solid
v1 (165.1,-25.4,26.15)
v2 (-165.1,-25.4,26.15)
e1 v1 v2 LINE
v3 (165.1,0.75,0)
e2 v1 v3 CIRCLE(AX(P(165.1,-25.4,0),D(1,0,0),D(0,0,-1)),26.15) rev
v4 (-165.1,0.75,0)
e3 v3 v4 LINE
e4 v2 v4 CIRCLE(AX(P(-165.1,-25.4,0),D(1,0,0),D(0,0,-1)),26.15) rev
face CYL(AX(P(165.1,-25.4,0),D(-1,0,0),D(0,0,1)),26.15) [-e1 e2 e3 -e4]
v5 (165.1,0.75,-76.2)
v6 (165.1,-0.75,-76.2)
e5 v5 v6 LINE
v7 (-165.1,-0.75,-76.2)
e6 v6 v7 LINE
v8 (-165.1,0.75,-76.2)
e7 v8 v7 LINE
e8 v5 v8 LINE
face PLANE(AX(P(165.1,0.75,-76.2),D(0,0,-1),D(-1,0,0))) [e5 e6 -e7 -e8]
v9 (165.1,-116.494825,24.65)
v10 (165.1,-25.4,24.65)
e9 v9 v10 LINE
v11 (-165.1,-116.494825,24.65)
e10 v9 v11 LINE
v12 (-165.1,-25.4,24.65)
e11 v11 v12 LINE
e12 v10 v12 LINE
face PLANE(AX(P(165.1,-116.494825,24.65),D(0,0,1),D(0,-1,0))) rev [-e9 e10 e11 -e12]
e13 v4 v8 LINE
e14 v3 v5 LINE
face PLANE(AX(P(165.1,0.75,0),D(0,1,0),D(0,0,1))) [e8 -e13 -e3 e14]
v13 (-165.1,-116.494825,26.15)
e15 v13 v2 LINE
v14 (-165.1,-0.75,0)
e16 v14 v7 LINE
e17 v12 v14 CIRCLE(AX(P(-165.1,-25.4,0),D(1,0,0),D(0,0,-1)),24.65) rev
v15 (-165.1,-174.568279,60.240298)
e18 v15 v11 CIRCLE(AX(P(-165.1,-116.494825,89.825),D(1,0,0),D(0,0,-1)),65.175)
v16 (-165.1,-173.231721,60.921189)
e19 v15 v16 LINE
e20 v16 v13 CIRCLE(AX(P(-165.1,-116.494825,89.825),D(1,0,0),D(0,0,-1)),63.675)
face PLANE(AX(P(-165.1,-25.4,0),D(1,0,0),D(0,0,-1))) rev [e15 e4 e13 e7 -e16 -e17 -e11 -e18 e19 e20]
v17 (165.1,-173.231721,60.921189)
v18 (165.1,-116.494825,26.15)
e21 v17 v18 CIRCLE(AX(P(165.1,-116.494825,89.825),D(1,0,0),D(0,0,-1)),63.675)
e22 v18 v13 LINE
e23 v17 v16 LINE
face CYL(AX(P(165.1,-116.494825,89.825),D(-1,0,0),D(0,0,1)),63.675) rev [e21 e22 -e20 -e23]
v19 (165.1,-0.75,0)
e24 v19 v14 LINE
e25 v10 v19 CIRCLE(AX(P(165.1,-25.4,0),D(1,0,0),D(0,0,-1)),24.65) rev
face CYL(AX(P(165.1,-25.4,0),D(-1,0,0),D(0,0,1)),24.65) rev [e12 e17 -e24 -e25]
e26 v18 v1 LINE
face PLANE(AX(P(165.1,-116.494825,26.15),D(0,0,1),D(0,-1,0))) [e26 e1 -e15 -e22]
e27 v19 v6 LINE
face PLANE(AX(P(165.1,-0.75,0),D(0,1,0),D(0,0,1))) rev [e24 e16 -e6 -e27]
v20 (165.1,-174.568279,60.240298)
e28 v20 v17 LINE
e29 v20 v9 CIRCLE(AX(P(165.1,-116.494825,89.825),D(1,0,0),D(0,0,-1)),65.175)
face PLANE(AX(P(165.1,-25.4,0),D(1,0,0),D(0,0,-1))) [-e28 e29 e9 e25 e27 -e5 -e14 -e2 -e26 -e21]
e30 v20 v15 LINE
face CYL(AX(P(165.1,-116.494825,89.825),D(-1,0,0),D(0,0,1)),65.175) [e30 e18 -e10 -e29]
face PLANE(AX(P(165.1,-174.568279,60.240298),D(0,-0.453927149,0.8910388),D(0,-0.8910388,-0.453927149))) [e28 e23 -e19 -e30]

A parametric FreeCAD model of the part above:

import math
import FreeCAD as App
import Part
import Sketcher
from FreeCAD import Vector
Q = App.Units.Quantity

doc = App.newDocument("Part")
params = doc.addObject("Spreadsheet::Sheet", "Params")
for row, (alias, value) in enumerate([
    ("sketch1_radius", "24.65 mm"),
    ("sketch1_radius2", "26.15 mm"),
    ("sketch1_height", "76.2 mm"),
    ("pad1_length", "330.2 mm"),
], start=1):
    params.set(f"A{row}", alias)
    params.set(f"B{row}", "=" + value)
    params.setAlias(f"B{row}", alias)

body = doc.addObject("PartDesign::Body", "Body")

sketch1 = body.newObject("Sketcher::SketchObject", "Sketch")
sketch1.AttachmentSupport = (doc.getObject("YZ_Plane"), [""])
sketch1.MapMode = "FlatFace"
sketch1.addGeometry([
    Part.ArcOfCircle(Part.Circle(Vector(-116.494825, 89.825, 0), Vector(0, 0, 1), 65.175), math.radians(-153.004074), math.radians(-90)),
    Part.LineSegment(Vector(-116.494825, 24.65, 0), Vector(-25.4, 24.65, 0)),
    Part.ArcOfCircle(Part.Circle(Vector(-25.4, 0, 0), Vector(0, 0, 1), 24.65), math.radians(0), math.radians(90)),
    Part.LineSegment(Vector(-0.75, 0, 0), Vector(-0.75, -76.2, 0)),
    Part.LineSegment(Vector(-0.75, -76.2, 0), Vector(0.75, -76.2, 0)),
    Part.LineSegment(Vector(0.75, -76.2, 0), Vector(0.75, 0, 0)),
    Part.ArcOfCircle(Part.Circle(Vector(-25.4, 0, 0), Vector(0, 0, 1), 26.15), math.radians(0), math.radians(90)),
    Part.LineSegment(Vector(-25.4, 26.15, 0), Vector(-116.494825, 26.15, 0)),
    Part.ArcOfCircle(Part.Circle(Vector(-116.494825, 89.825, 0), Vector(0, 0, 1), 63.675), math.radians(-153.004074), math.radians(-90)),
    Part.LineSegment(Vector(-173.231721, 60.921189, 0), Vector(-174.568279, 60.240298, 0)),
], False)
sketch1.addConstraint([
    Sketcher.Constraint("Tangent", 0, 2, 1, 1),
    Sketcher.Constraint("Tangent", 1, 2, 2, 2),
    Sketcher.Constraint("Tangent", 2, 1, 3, 1),
    Sketcher.Constraint("Coincident", 3, 2, 4, 1),
    Sketcher.Constraint("Coincident", 4, 2, 5, 1),
    Sketcher.Constraint("Tangent", 5, 2, 6, 1),
    Sketcher.Constraint("Tangent", 6, 2, 7, 1),
    Sketcher.Constraint("Tangent", 7, 2, 8, 2),
    Sketcher.Constraint("Coincident", 8, 1, 9, 1),
    Sketcher.Constraint("Coincident", 9, 2, 0, 1),
    Sketcher.Constraint("Horizontal", 1),
    Sketcher.Constraint("Vertical", 3),
    Sketcher.Constraint("Horizontal", 4),
    Sketcher.Constraint("Vertical", 5),
    Sketcher.Constraint("Horizontal", 7),
    Sketcher.Constraint("Coincident", 6, 3, 2, 3),
    Sketcher.Constraint("Coincident", 8, 3, 0, 3),
    Sketcher.Constraint("Symmetric", 2, 1, 5, 2, -1, 1),
    Sketcher.Constraint("Radius", 2, Q("24.65 mm")),
    Sketcher.Constraint("Radius", 6, Q("26.15 mm")),
    Sketcher.Constraint("DistanceY", 3, 2, 3, 1, Q("76.2 mm")),
    Sketcher.Constraint("Radius", 0, Q("65.175 mm")),
    Sketcher.Constraint("DistanceY", -1, 1, 9, 2, Q("60.240298 mm")),
    Sketcher.Constraint("DistanceX", 1, 1, 1, 2, Q("91.094825 mm")),
    Sketcher.Constraint("DistanceX", 8, 1, -1, 1, Q("173.231721 mm")),
])
sketch1.setExpression("Constraints[18]", "Params.sketch1_radius")
sketch1.setExpression("Constraints[19]", "Params.sketch1_radius2")
sketch1.setExpression("Constraints[20]", "Params.sketch1_height")
pad1 = body.newObject("PartDesign::Pad", "Pad")
pad1.Profile = sketch1
pad1.setExpression("Length", "Params.pad1_length")
pad1.Midplane = True

doc.recompute()
